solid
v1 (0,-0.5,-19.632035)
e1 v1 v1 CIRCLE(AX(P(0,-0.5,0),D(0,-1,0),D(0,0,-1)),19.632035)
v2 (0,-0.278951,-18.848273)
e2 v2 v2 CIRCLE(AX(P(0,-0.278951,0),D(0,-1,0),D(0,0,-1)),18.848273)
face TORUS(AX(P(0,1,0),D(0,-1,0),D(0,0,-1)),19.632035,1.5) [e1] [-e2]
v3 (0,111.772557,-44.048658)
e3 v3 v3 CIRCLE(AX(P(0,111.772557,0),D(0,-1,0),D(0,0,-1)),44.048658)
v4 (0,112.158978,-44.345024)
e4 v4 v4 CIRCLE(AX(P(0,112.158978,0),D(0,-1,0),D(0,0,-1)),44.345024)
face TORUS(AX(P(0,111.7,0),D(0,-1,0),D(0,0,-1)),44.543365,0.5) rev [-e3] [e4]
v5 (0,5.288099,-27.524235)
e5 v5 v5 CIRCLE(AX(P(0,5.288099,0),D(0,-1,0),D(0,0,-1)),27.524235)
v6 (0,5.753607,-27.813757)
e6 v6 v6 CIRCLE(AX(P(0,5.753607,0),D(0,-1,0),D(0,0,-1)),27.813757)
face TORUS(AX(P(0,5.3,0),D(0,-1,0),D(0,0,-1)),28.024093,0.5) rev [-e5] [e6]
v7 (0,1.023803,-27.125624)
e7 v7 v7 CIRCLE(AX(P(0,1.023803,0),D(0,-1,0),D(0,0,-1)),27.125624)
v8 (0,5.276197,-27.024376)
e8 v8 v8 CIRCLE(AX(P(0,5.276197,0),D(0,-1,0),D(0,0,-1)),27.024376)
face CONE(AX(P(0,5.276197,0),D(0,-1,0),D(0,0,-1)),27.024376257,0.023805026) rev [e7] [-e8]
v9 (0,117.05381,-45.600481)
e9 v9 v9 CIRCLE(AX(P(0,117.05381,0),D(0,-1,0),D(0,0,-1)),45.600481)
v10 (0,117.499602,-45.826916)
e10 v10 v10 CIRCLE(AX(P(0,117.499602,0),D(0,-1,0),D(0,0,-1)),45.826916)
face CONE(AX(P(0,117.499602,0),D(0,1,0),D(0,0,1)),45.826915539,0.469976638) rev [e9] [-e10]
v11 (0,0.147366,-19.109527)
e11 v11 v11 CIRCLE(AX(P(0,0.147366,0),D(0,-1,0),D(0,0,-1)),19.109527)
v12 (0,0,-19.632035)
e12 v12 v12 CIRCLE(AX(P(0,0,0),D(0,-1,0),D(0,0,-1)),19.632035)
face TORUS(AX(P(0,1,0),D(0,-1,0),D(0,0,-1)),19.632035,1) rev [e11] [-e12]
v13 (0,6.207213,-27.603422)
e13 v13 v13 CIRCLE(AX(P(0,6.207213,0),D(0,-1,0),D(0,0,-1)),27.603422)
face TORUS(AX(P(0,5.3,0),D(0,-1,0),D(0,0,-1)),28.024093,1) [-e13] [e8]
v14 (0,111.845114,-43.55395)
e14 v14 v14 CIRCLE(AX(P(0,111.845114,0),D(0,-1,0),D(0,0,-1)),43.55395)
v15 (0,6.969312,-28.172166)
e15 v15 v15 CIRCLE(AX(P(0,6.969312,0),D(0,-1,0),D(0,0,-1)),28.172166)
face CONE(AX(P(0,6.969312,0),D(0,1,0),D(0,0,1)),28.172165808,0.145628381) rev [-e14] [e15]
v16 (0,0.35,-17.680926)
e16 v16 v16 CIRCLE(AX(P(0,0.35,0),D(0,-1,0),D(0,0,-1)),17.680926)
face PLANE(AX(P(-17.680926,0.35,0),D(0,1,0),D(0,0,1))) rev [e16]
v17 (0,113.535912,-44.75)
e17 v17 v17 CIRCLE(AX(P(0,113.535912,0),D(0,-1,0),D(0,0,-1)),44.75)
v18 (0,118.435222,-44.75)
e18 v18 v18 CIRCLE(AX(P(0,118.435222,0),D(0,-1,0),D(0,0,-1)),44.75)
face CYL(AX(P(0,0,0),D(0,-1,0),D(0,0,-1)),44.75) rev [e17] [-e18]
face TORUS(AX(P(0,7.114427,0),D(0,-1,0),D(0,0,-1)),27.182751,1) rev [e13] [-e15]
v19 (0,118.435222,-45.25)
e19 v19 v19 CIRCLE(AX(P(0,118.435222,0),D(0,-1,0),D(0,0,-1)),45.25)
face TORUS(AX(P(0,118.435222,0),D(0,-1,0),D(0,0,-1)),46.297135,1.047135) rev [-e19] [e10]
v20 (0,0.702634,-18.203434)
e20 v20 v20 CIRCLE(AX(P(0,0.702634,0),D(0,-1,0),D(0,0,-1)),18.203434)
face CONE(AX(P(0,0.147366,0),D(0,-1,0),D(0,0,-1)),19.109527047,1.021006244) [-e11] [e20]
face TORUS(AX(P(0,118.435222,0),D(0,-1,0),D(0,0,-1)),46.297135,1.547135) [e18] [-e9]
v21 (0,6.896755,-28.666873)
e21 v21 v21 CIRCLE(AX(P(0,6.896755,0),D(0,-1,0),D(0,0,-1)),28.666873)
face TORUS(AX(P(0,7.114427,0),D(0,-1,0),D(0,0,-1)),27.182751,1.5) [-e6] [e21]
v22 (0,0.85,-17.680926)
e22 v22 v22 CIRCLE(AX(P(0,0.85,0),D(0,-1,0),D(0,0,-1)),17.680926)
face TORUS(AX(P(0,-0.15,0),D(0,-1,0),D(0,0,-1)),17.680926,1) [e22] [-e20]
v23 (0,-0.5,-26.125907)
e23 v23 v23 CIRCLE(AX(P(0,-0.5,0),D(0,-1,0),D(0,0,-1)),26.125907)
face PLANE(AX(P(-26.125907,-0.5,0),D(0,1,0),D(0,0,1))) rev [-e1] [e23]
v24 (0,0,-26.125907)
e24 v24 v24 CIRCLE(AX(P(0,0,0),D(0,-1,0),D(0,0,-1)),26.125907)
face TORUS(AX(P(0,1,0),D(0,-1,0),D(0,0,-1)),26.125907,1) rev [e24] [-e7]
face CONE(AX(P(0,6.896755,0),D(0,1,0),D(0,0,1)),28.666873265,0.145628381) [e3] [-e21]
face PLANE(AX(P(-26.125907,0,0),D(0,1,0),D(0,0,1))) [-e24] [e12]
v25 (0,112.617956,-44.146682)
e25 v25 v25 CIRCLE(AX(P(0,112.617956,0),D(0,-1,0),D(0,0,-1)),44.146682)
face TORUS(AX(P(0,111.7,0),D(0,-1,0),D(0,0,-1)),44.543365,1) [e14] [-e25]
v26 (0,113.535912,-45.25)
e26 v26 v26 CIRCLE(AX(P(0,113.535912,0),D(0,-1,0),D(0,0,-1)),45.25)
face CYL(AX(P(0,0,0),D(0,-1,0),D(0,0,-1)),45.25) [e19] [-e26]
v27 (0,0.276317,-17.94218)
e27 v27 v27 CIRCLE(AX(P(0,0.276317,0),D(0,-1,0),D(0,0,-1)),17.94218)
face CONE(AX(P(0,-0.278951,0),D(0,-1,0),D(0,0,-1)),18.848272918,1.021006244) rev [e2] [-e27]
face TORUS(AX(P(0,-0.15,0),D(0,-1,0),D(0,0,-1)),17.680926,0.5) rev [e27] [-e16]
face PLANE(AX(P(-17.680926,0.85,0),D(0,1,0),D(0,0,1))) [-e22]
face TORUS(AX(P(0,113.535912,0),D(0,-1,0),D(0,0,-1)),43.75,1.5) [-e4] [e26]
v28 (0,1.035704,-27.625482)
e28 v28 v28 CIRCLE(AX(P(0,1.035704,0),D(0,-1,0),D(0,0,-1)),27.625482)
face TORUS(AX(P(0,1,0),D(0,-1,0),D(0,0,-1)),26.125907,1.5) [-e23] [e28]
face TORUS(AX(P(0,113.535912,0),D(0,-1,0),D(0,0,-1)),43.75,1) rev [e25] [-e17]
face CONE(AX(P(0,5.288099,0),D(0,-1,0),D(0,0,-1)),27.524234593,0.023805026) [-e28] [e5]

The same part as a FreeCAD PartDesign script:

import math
import FreeCAD as App
import Part
import Sketcher

doc = App.newDocument("Part")
body = doc.addObject("PartDesign::Body", "Body")

sketch1 = body.newObject("Sketcher::SketchObject", "Sketch")
sketch1.AttachmentSupport = (doc.getObject("XY_Plane"), [""])
sketch1.MapMode = "FlatFace"
sketch1.addGeometry(Part.LineSegment(App.Vector(0, 0.35, 0), App.Vector(0, 0.85, 0)), False)
sketch1.addGeometry(Part.LineSegment(App.Vector(0, 0.85, 0), App.Vector(-17.68, 0.85, 0)), False)
sketch1.addGeometry(Part.ArcOfCircle(Part.Circle(App.Vector(-17.68, -0.15, 0), App.Vector(0, 0, 1), 1), math.radians(90), math.radians(122)), False)
sketch1.addGeometry(Part.LineSegment(App.Vector(-18.2, 0.7, 0), App.Vector(-19.11, 0.15, 0)), False)
sketch1.addGeometry(Part.ArcOfCircle(Part.Circle(App.Vector(-19.63, 1, 0), App.Vector(0, 0, 1), 1), math.radians(-90), math.radians(-58)), False)
sketch1.addGeometry(Part.LineSegment(App.Vector(-19.63, 0, 0), App.Vector(-26.13, 0, 0)), False)
sketch1.addGeometry(Part.ArcOfCircle(Part.Circle(App.Vector(-26.13, 1, 0), App.Vector(0, 0, 1), 1), math.radians(179), math.radians(270)), False)
sketch1.addGeometry(Part.LineSegment(App.Vector(-27.13, 1.02, 0), App.Vector(-27.02, 5.28, 0)), False)
sketch1.addGeometry(Part.ArcOfCircle(Part.Circle(App.Vector(-28.02, 5.3, 0), App.Vector(0, 0, 1), 1), math.radians(-1), math.radians(65)), False)
sketch1.addGeometry(Part.ArcOfCircle(Part.Circle(App.Vector(-27.18, 7.11, 0), App.Vector(0, 0, 1), 1), math.radians(-172), math.radians(-115)), False)
sketch1.addGeometry(Part.LineSegment(App.Vector(-28.17, 6.97, 0), App.Vector(-43.55, 111.85, 0)), False)
sketch1.addGeometry(Part.ArcOfCircle(Part.Circle(App.Vector(-44.54, 111.7, 0), App.Vector(0, 0, 1), 1), math.radians(8), math.radians(67)), False)
sketch1.addGeometry(Part.ArcOfCircle(Part.Circle(App.Vector(-43.75, 113.54, 0), App.Vector(0, 0, 1), 1), math.radians(180), math.radians(247)), False)
sketch1.addGeometry(Part.LineSegment(App.Vector(-44.75, 113.54, 0), App.Vector(-44.75, 118.44, 0)), False)
sketch1.addGeometry(Part.ArcOfCircle(Part.Circle(App.Vector(-46.3, 118.44, 0), App.Vector(0, 0, 1), 1.55), math.radians(0), math.radians(297)), False)
sketch1.addGeometry(Part.LineSegment(App.Vector(-45.6, 117.05, 0), App.Vector(-45.83, 117.5, 0)), False)
sketch1.addGeometry(Part.ArcOfCircle(Part.Circle(App.Vector(-46.3, 118.44, 0), App.Vector(0, 0, 1), 1.05), math.radians(0), math.radians(297)), False)
sketch1.addGeometry(Part.LineSegment(App.Vector(-45.25, 118.44, 0), App.Vector(-45.25, 113.54, 0)), False)
sketch1.addGeometry(Part.ArcOfCircle(Part.Circle(App.Vector(-43.75, 113.54, 0), App.Vector(0, 0, 1), 1.5), math.radians(180), math.radians(247)), False)
sketch1.addGeometry(Part.ArcOfCircle(Part.Circle(App.Vector(-44.54, 111.7, 0), App.Vector(0, 0, 1), 0.5), math.radians(8), math.radians(67)), False)
sketch1.addGeometry(Part.LineSegment(App.Vector(-44.05, 111.77, 0), App.Vector(-28.67, 6.9, 0)), False)
sketch1.addGeometry(Part.ArcOfCircle(Part.Circle(App.Vector(-27.18, 7.11, 0), App.Vector(0, 0, 1), 1.5), math.radians(-172), math.radians(-115)), False)
sketch1.addGeometry(Part.ArcOfCircle(Part.Circle(App.Vector(-28.02, 5.3, 0), App.Vector(0, 0, 1), 0.5), math.radians(-1), math.radians(65)), False)
sketch1.addGeometry(Part.LineSegment(App.Vector(-27.52, 5.29, 0), App.Vector(-27.63, 1.04, 0)), False)
sketch1.addGeometry(Part.ArcOfCircle(Part.Circle(App.Vector(-26.13, 1, 0), App.Vector(0, 0, 1), 1.5), math.radians(179), math.radians(270)), False)
sketch1.addGeometry(Part.LineSegment(App.Vector(-26.13, -0.5, 0), App.Vector(-19.63, -0.5, 0)), False)
sketch1.addGeometry(Part.ArcOfCircle(Part.Circle(App.Vector(-19.63, 1, 0), App.Vector(0, 0, 1), 1.5), math.radians(-90), math.radians(-58)), False)
sketch1.addGeometry(Part.LineSegment(App.Vector(-18.85, -0.28, 0), App.Vector(-17.94, 0.28, 0)), False)
sketch1.addGeometry(Part.ArcOfCircle(Part.Circle(App.Vector(-17.68, -0.15, 0), App.Vector(0, 0, 1), 0.5), math.radians(90), math.radians(122)), False)
sketch1.addGeometry(Part.LineSegment(App.Vector(-17.68, 0.35, 0), App.Vector(0, 0.35, 0)), False)
sketch1.addConstraint(Sketcher.Constraint("Coincident", 0, 2, 1, 1))
sketch1.addConstraint(Sketcher.Constraint("Tangent", 1, 2, 2, 1))
sketch1.addConstraint(Sketcher.Constraint("Tangent", 2, 2, 3, 1))
sketch1.addConstraint(Sketcher.Constraint("Tangent", 3, 2, 4, 2))
sketch1.addConstraint(Sketcher.Constraint("Tangent", 4, 1, 5, 1))
sketch1.addConstraint(Sketcher.Constraint("Tangent", 5, 2, 6, 2))
sketch1.addConstraint(Sketcher.Constraint("Tangent", 6, 1, 7, 1))
sketch1.addConstraint(Sketcher.Constraint("Tangent", 7, 2, 8, 1))
sketch1.addConstraint(Sketcher.Constraint("Tangent", 8, 2, 9, 2))
sketch1.addConstraint(Sketcher.Constraint("Tangent", 9, 1, 10, 1))
sketch1.addConstraint(Sketcher.Constraint("Tangent", 10, 2, 11, 1))
sketch1.addConstraint(Sketcher.Constraint("Tangent", 11, 2, 12, 2))
sketch1.addConstraint(Sketcher.Constraint("Tangent", 12, 1, 13, 1))
sketch1.addConstraint(Sketcher.Constraint("Tangent", 13, 2, 14, 1))
sketch1.addConstraint(Sketcher.Constraint("Coincident", 14, 2, 15, 1))
sketch1.addConstraint(Sketcher.Constraint("Coincident", 15, 2, 16, 2))
sketch1.addConstraint(Sketcher.Constraint("Tangent", 16, 1, 17, 1))
sketch1.addConstraint(Sketcher.Constraint("Tangent", 17, 2, 18, 1))
sketch1.addConstraint(Sketcher.Constraint("Tangent", 18, 2, 19, 2))
sketch1.addConstraint(Sketcher.Constraint("Tangent", 19, 1, 20, 1))
sketch1.addConstraint(Sketcher.Constraint("Tangent", 20, 2, 21, 1))
sketch1.addConstraint(Sketcher.Constraint("Tangent", 21, 2, 22, 2))
sketch1.addConstraint(Sketcher.Constraint("Tangent", 22, 1, 23, 1))
sketch1.addConstraint(Sketcher.Constraint("Tangent", 23, 2, 24, 1))
sketch1.addConstraint(Sketcher.Constraint("Tangent", 24, 2, 25, 1))
sketch1.addConstraint(Sketcher.Constraint("Tangent", 25, 2, 26, 1))
sketch1.addConstraint(Sketcher.Constraint("Tangent", 26, 2, 27, 1))
sketch1.addConstraint(Sketcher.Constraint("Tangent", 27, 2, 28, 2))
sketch1.addConstraint(Sketcher.Constraint("Tangent", 28, 1, 29, 1))
sketch1.addConstraint(Sketcher.Constraint("Coincident", 29, 2, 0, 1))
sketch1.addConstraint(Sketcher.Constraint("Vertical", 0))
sketch1.addConstraint(Sketcher.Constraint("Horizontal", 1))
sketch1.addConstraint(Sketcher.Constraint("Horizontal", 5))
sketch1.addConstraint(Sketcher.Constraint("Vertical", 13))
sketch1.addConstraint(Sketcher.Constraint("Vertical", 17))
sketch1.addConstraint(Sketcher.Constraint("Horizontal", 25))
sketch1.addConstraint(Sketcher.Constraint("Horizontal", 29))
sketch1.addConstraint(Sketcher.Constraint("Coincident", 16, 3, 14, 3))
sketch1.addConstraint(Sketcher.Constraint("Coincident", 18, 3, 12, 3))
sketch1.addConstraint(Sketcher.Constraint("Coincident", 19, 3, 11, 3))
sketch1.addConstraint(Sketcher.Constraint("Coincident", 21, 3, 9, 3))
sketch1.addConstraint(Sketcher.Constraint("Coincident", 22, 3, 8, 3))
sketch1.addConstraint(Sketcher.Constraint("Coincident", 24, 3, 6, 3))
sketch1.addConstraint(Sketcher.Constraint("Coincident", 26, 3, 4, 3))
sketch1.addConstraint(Sketcher.Constraint("Coincident", 28, 3, 2, 3))
sketch1.addConstraint(Sketcher.Constraint("Equal", 2, 4))
sketch1.addConstraint(Sketcher.Constraint("Equal", 4, 6))
sketch1.addConstraint(Sketcher.Constraint("Equal", 6, 8))
sketch1.addConstraint(Sketcher.Constraint("Equal", 8, 9))
sketch1.addConstraint(Sketcher.Constraint("Equal", 9, 11))
sketch1.addConstraint(Sketcher.Constraint("Equal", 11, 12))
sketch1.addConstraint(Sketcher.Constraint("Equal", 18, 21))
sketch1.addConstraint(Sketcher.Constraint("Equal", 21, 24))
sketch1.addConstraint(Sketcher.Constraint("Equal", 22, 28))
sketch1.addConstraint(Sketcher.Constraint("PointOnObject", 0, 2, -2))
sketch1.addConstraint(Sketcher.Constraint("PointOnObject", 4, 1, -1))
sketch1.addConstraint(Sketcher.Constraint("Radius", 2, 1.0))
sketch1.addConstraint(Sketcher.Constraint("Radius", 18, 1.5))
sketch1.addConstraint(Sketcher.Constraint("DistanceY", -1, 1, 8, 3, 5.3))
sketch1.addConstraint(Sketcher.Constraint("DistanceY", -1, 1, 11, 3, 111.7))
sketch1.addConstraint(Sketcher.Constraint("DistanceY", 2, 3, -1, 1, 0.15))
sketch1.addConstraint(Sketcher.Constraint("DistanceX", 12, 3, -1, 1, 43.75))
sketch1.addConstraint(Sketcher.Constraint("Radius", 14, 1.547135))
sketch1.addConstraint(Sketcher.Constraint("Distance", 7, 4.2536))
sketch1.addConstraint(Sketcher.Constraint("DistanceX", 5, 2, 5, 1, 6.493872))
sketch1.addConstraint(Sketcher.Constraint("DistanceY", 13, 1, 13, 2, 4.89931))
sketch1.addConstraint(Sketcher.Constraint("DistanceX", 4, 3, 2, 2, 1.428601))
sketch1.addConstraint(Sketcher.Constraint("DistanceY", 8, 2, 9, 1, 0.762099))
sketch1.addConstraint(Sketcher.Constraint("DistanceY", 12, 1, 14, 2, 3.517898))
sketch1.addConstraint(Sketcher.Constraint("DistanceY", 19, 1, 11, 2, 0.845399))
sketch1.addConstraint(Sketcher.Constraint("DistanceX", 1, 2, 1, 1, 17.680926))
sketch1.addConstraint(Sketcher.Constraint("DistanceX", 14, 3, 15, 2, 0.470219))
revolution = body.newObject("PartDesign::Revolution", "Revolution")
revolution.Profile = sketch1
revolution.ReferenceAxis = (sketch1, ["V_Axis"])
revolution.Angle = 360

doc.recompute()
